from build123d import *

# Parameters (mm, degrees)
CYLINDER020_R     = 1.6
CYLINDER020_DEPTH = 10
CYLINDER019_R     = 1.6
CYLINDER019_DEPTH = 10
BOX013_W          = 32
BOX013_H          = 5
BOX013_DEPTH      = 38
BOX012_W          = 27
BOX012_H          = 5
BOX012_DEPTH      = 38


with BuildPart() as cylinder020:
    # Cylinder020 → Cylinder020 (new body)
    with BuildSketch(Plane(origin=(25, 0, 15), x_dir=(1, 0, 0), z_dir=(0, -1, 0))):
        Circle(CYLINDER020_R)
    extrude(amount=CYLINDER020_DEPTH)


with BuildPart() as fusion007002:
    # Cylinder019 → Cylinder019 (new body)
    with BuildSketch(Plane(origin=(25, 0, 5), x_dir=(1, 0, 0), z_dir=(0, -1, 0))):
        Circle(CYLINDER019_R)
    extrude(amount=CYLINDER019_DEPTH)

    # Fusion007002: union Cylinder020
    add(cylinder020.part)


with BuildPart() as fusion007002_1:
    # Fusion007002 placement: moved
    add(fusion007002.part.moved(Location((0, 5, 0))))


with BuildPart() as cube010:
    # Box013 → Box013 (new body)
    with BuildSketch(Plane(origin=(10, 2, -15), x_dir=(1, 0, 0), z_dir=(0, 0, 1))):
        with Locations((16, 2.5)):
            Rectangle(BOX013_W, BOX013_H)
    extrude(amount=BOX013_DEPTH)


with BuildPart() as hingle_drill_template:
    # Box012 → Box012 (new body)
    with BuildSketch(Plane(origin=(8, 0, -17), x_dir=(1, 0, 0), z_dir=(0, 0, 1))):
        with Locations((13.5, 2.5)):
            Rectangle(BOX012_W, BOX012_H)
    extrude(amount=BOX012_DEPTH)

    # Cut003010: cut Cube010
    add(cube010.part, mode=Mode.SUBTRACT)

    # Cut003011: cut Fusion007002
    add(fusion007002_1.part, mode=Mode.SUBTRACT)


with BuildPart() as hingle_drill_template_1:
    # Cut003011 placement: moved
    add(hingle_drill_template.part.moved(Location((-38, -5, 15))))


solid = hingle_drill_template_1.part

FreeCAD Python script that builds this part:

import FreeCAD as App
import Part
import Sketcher
Q = App.Units.Quantity

doc = App.newDocument("Part")
body = doc.addObject("PartDesign::Body", "Body")

sketch1 = body.newObject("Sketcher::SketchObject", "Sketch")
sketch1.AttachmentSupport = (doc.getObject("XZ_Plane"), [""])
sketch1.MapMode = "FlatFace"
sketch1.addGeometry(Part.Circle(App.Vector(25, 15, 0), App.Vector(0, 0, 1), 1.6), False)
sketch1.addConstraint([
    Sketcher.Constraint("Diameter", 0, Q("3.2 mm")),
    Sketcher.Constraint("DistanceX", -1, 1, 0, 3, Q("25 mm")),
    Sketcher.Constraint("DistanceY", -1, 1, 0, 3, Q("15 mm")),
])
pad1 = body.newObject("PartDesign::Pad", "Pad")
pad1.Profile = sketch1
pad1.Length = 10
body2 = doc.addObject("PartDesign::Body", "Body001")
body2.AllowCompound = True

sketch2 = body2.newObject("Sketcher::SketchObject", "Sketch001")
sketch2.AttachmentSupport = (doc.getObject("XZ_Plane001"), [""])
sketch2.MapMode = "FlatFace"
sketch2.addGeometry(Part.Circle(App.Vector(25, 5, 0), App.Vector(0, 0, 1), 1.6), False)
sketch2.addConstraint([
    Sketcher.Constraint("Diameter", 0, Q("3.2 mm")),
    Sketcher.Constraint("DistanceX", -1, 1, 0, 3, Q("25 mm")),
    Sketcher.Constraint("DistanceY", -1, 1, 0, 3, Q("5 mm")),
])
pad2 = body2.newObject("PartDesign::Pad", "Pad001")
pad2.Profile = sketch2
pad2.Length = 10
doc.recompute()

boolean = body2.newObject("PartDesign::Boolean", "Boolean")
boolean.Type = "Fuse"
boolean.addObjects([body])
body3 = doc.addObject("PartDesign::Body", "Body002")
body3.AllowCompound = True
doc.recompute()

body2.Placement = App.Placement(App.Vector(0, 5, 0), App.Rotation(App.Vector(0, 0, 1), 0))
boolean2 = body3.newObject("PartDesign::Boolean", "Boolean001")
boolean2.Type = "Fuse"
boolean2.addObjects([body2])
body4 = doc.addObject("PartDesign::Body", "Body003")

sketch3 = body4.newObject("Sketcher::SketchObject", "Sketch002")
sketch3.AttachmentSupport = (doc.getObject("XY_Plane003"), [""])
sketch3.MapMode = "FlatFace"
sketch3.AttachmentOffset = App.Placement(App.Vector(0, 0, -15), App.Rotation())
sketch3.addGeometry([
    Part.LineSegment(App.Vector(10, 7, 0), App.Vector(10, 2, 0)),
    Part.LineSegment(App.Vector(10, 2, 0), App.Vector(42, 2, 0)),
    Part.LineSegment(App.Vector(42, 2, 0), App.Vector(42, 7, 0)),
    Part.LineSegment(App.Vector(42, 7, 0), App.Vector(10, 7, 0)),
], False)
sketch3.addConstraint([
    Sketcher.Constraint("Coincident", 0, 2, 1, 1),
    Sketcher.Constraint("Coincident", 1, 2, 2, 1),
    Sketcher.Constraint("Coincident", 2, 2, 3, 1),
    Sketcher.Constraint("Coincident", 3, 2, 0, 1),
    Sketcher.Constraint("Vertical", 0),
    Sketcher.Constraint("Horizontal", 1),
    Sketcher.Constraint("Vertical", 2),
    Sketcher.Constraint("Horizontal", 3),
    Sketcher.Constraint("DistanceX", 1, 1, 1, 2, Q("32 mm")),
    Sketcher.Constraint("DistanceY", 0, 2, 0, 1, Q("5 mm")),
    Sketcher.Constraint("DistanceX", -1, 1, 0, 2, Q("10 mm")),
    Sketcher.Constraint("DistanceY", -1, 1, 0, 2, Q("2 mm")),
])
pad3 = body4.newObject("PartDesign::Pad", "Pad002")
pad3.Profile = sketch3
pad3.Length = 38
body5 = doc.addObject("PartDesign::Body", "Body004")

sketch4 = body5.newObject("Sketcher::SketchObject", "Sketch003")
sketch4.AttachmentSupport = (doc.getObject("XY_Plane004"), [""])
sketch4.MapMode = "FlatFace"
sketch4.AttachmentOffset = App.Placement(App.Vector(0, 0, -17), App.Rotation())
sketch4.addGeometry([
    Part.LineSegment(App.Vector(8, 5, 0), App.Vector(8, 0, 0)),
    Part.LineSegment(App.Vector(8, 0, 0), App.Vector(35, 0, 0)),
    Part.LineSegment(App.Vector(35, 0, 0), App.Vector(35, 5, 0)),
    Part.LineSegment(App.Vector(35, 5, 0), App.Vector(8, 5, 0)),
], False)
sketch4.addConstraint([
    Sketcher.Constraint("Coincident", 0, 2, 1, 1),
    Sketcher.Constraint("Coincident", 1, 2, 2, 1),
    Sketcher.Constraint("Coincident", 2, 2, 3, 1),
    Sketcher.Constraint("Coincident", 3, 2, 0, 1),
    Sketcher.Constraint("Vertical", 0),
    Sketcher.Constraint("Horizontal", 1),
    Sketcher.Constraint("Vertical", 2),
    Sketcher.Constraint("Horizontal", 3),
    Sketcher.Constraint("PointOnObject", 0, 2, -1),
    Sketcher.Constraint("DistanceX", 1, 1, 1, 2, Q("27 mm")),
    Sketcher.Constraint("DistanceY", 0, 2, 0, 1, Q("5 mm")),
    Sketcher.Constraint("DistanceX", -1, 1, 0, 2, Q("8 mm")),
])
pad4 = body5.newObject("PartDesign::Pad", "Pad003")
pad4.Profile = sketch4
pad4.Length = 38
doc.recompute()

boolean3 = body5.newObject("PartDesign::Boolean", "Boolean002")
boolean3.Type = "Cut"
boolean3.addObjects([body4])
doc.recompute()

boolean4 = body5.newObject("PartDesign::Boolean", "Boolean003")
boolean4.Type = "Cut"
boolean4.addObjects([body3])
body6 = doc.addObject("PartDesign::Body", "Body005")
doc.recompute()

body5.Placement = App.Placement(App.Vector(-38, -5, 15), App.Rotation(App.Vector(0, 0, 1), 0))
boolean5 = body6.newObject("PartDesign::Boolean", "Boolean004")
boolean5.Type = "Fuse"
boolean5.addObjects([body5])

doc.recompute()
